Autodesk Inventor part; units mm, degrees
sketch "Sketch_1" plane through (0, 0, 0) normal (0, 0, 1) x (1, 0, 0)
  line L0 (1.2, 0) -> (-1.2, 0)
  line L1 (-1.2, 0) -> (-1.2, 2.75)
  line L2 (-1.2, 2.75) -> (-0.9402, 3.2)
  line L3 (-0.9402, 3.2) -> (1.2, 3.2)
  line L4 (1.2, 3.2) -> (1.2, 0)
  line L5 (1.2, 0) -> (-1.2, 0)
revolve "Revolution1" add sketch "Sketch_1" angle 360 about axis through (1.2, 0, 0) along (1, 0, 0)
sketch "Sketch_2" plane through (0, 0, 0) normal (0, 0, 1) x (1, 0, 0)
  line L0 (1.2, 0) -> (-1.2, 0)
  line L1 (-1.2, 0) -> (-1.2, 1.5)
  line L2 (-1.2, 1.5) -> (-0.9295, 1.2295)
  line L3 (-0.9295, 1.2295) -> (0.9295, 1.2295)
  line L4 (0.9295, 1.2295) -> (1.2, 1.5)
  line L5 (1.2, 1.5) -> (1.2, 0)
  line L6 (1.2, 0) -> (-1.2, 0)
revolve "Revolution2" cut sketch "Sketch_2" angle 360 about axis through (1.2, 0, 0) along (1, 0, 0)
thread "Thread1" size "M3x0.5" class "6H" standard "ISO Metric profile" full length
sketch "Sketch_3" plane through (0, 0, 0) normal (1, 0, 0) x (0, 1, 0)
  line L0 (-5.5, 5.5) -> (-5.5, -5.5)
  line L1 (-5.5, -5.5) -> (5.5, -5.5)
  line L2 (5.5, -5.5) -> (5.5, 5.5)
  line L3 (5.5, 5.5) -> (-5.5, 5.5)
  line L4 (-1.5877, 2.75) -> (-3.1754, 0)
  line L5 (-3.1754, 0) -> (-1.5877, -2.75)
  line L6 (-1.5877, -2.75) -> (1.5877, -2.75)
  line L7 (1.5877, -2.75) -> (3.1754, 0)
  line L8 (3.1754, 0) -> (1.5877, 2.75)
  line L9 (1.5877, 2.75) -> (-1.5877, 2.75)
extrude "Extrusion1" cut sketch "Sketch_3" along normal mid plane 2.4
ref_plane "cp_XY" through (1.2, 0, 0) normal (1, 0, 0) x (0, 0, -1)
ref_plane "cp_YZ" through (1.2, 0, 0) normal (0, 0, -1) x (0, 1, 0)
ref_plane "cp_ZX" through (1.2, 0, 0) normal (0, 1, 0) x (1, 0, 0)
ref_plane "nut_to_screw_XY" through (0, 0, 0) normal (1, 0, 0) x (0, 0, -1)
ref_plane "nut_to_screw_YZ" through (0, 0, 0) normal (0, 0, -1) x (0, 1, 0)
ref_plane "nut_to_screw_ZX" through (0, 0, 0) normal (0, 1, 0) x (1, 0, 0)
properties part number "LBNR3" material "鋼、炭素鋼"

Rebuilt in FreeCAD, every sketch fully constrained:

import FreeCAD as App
import Part
import Sketcher

V = App.Vector
Q = App.Units.Quantity


def add_polygon(sketch, points):
    """Adds a closed chain of lines whose ends are joined by coincident constraints."""
    first, n = sketch.GeometryCount, len(points)
    for a, b in zip(points, points[1:] + points[:1]):
        sketch.addGeometry(Part.LineSegment(App.Vector(*a, 0), App.Vector(*b, 0)), False)
    for i in range(n):
        sketch.addConstraint(Sketcher.Constraint("Coincident", first + i, 2, first + (i + 1) % n, 1))

doc = App.newDocument("Part")
body = doc.addObject("PartDesign::Body", "Body")

# Sketch on XY plane
sketch1 = body.newObject("Sketcher::SketchObject", "Sketch")
sketch1.AttachmentSupport = (doc.getObject("XY_Plane"), [""])
sketch1.MapMode = "FlatFace"
add_polygon(sketch1, [(-1.2, 0), (1.2, 0), (1.2, 3.2), (-0.9402, 3.2), (-1.2, 2.75)])  # lines 0-4
sketch1.addConstraint(Sketcher.Constraint("Horizontal", 0))
sketch1.addConstraint(Sketcher.Constraint("Vertical", 1))
sketch1.addConstraint(Sketcher.Constraint("Horizontal", 2))
sketch1.addConstraint(Sketcher.Constraint("Vertical", 4))
sketch1.addConstraint(Sketcher.Constraint("Symmetric", 0, 2, 4, 2, -1, 1))
sketch1.addConstraint(Sketcher.Constraint("Angle", 3, Q("-119.9993 deg")))
sketch1.addConstraint(Sketcher.Constraint("DistanceX", 0, 1, 0, 2, Q("2.4 mm")))
sketch1.addConstraint(Sketcher.Constraint("DistanceY", 1, 1, 1, 2, Q("3.2 mm")))
sketch1.addConstraint(Sketcher.Constraint("DistanceY", 4, 2, 4, 1, Q("2.75 mm")))
revolution = body.newObject("PartDesign::Revolution", "Revolution")
revolution.Profile = sketch1
revolution.ReferenceAxis = (sketch1, ["H_Axis"])
revolution.Angle = 360

# Sketch on XY plane
sketch2 = body.newObject("Sketcher::SketchObject", "Sketch001")
sketch2.AttachmentSupport = (doc.getObject("XY_Plane"), [""])
sketch2.MapMode = "FlatFace"
add_polygon(sketch2, [(-1.2, 0), (1.2, 0), (1.2, 1.5), (0.9295, 1.2295), (-0.9295, 1.2295), (-1.2, 1.5)])  # lines 0-5
sketch2.addConstraint(Sketcher.Constraint("Horizontal", 0))
sketch2.addConstraint(Sketcher.Constraint("Vertical", 1))
sketch2.addConstraint(Sketcher.Constraint("Horizontal", 3))
sketch2.addConstraint(Sketcher.Constraint("Vertical", 5))
sketch2.addConstraint(Sketcher.Constraint("Symmetric", 0, 2, 5, 2, -1, 1))
sketch2.addConstraint(Sketcher.Constraint("Perpendicular", 2, 4))
sketch2.addConstraint(Sketcher.Constraint("Horizontal", 1, 2, 4, 2))
sketch2.addConstraint(Sketcher.Constraint("Equal", 2, 4))
sketch2.addConstraint(Sketcher.Constraint("DistanceX", 0, 1, 0, 2, Q("2.4 mm")))
sketch2.addConstraint(Sketcher.Constraint("DistanceY", 1, 1, 1, 2, Q("1.5 mm")))
sketch2.addConstraint(Sketcher.Constraint("DistanceX", 3, 2, 3, 1, Q("1.859 mm")))
groove = body.newObject("PartDesign::Groove", "Groove")
groove.Profile = sketch2
groove.ReferenceAxis = (sketch2, ["H_Axis"])
groove.Angle = 360

# Sketch on YZ plane
sketch3 = body.newObject("Sketcher::SketchObject", "Sketch002")
sketch3.AttachmentSupport = (doc.getObject("YZ_Plane"), [""])
sketch3.MapMode = "FlatFace"
add_polygon(sketch3, [(5.5, 5.5), (-5.5, 5.5), (-5.5, -5.5), (5.5, -5.5)])  # lines 0-3
add_polygon(sketch3, [(-3.1754, 0), (-1.5877, 2.75), (1.5877, 2.75), (3.1754, 0), (1.5877, -2.75), (-1.5877, -2.75)])  # lines 4-9
sketch3.addConstraint(Sketcher.Constraint("Horizontal", 0))
sketch3.addConstraint(Sketcher.Constraint("Vertical", 1))
sketch3.addConstraint(Sketcher.Constraint("Horizontal", 2))
sketch3.addConstraint(Sketcher.Constraint("Vertical", 3))
sketch3.addConstraint(Sketcher.Constraint("Horizontal", 5))
sketch3.addConstraint(Sketcher.Constraint("Horizontal", 8))
sketch3.addConstraint(Sketcher.Constraint("Symmetric", 0, 2, 2, 2, -1, 1))
sketch3.addConstraint(Sketcher.Constraint("Symmetric", 4, 2, 7, 2, -1, 1))
sketch3.addConstraint(Sketcher.Constraint("Symmetric", 6, 2, 9, 2, -1, 1))
sketch3.addConstraint(Sketcher.Constraint("PointOnObject", 6, 2, -1))
sketch3.addConstraint(Sketcher.Constraint("Parallel", 6, 9))
sketch3.addConstraint(Sketcher.Constraint("Vertical", 5, 2, 7, 2))
sketch3.addConstraint(Sketcher.Constraint("Equal", 2, 1))
sketch3.addConstraint(Sketcher.Constraint("DistanceX", 0, 2, 0, 1, Q("11 mm")))
sketch3.addConstraint(Sketcher.Constraint("Angle", 4, Q("60.0002 deg")))
sketch3.addConstraint(Sketcher.Constraint("DistanceY", 7, 2, 5, 2, Q("5.5 mm")))
sketch3.addConstraint(Sketcher.Constraint("DistanceX", 5, 1, 5, 2, Q("3.1754 mm")))
pocket1 = body.newObject("PartDesign::Pocket", "Pocket")
pocket1.Profile = sketch3
pocket1.Length = 2.4
pocket1.Midplane = True

doc.recompute()
